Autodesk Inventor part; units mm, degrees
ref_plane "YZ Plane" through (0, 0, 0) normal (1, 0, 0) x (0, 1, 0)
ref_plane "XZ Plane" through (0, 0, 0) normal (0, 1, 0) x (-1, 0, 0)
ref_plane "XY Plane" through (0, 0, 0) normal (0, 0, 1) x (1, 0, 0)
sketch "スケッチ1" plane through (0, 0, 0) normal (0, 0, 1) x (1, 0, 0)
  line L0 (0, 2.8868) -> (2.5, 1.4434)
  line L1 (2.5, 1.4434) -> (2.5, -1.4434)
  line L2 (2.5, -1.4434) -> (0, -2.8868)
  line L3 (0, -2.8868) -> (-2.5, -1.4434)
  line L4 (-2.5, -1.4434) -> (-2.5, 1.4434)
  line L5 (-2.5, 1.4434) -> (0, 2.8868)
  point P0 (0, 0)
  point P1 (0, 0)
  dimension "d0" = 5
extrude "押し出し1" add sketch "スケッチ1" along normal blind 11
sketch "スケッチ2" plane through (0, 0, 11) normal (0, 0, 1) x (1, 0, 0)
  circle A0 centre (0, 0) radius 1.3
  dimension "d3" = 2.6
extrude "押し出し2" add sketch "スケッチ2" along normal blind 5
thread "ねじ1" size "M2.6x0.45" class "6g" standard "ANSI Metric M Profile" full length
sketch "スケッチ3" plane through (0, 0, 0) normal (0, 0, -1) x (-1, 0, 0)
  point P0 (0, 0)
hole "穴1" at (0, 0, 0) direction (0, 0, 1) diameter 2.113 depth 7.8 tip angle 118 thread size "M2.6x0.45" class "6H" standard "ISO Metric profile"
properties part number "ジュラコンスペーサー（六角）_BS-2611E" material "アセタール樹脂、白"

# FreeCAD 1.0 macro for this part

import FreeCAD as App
import Part
import Sketcher
Q = App.Units.Quantity

doc = App.newDocument("Part")
body = doc.addObject("PartDesign::Body", "Body")

sketch1 = body.newObject("Sketcher::SketchObject", "Sketch")
sketch1.AttachmentSupport = (doc.getObject("XY_Plane"), [""])
sketch1.MapMode = "FlatFace"
sketch1.addGeometry([
    Part.LineSegment(App.Vector(2.5, 1.4434, 0), App.Vector(0, 2.8868, 0)),
    Part.LineSegment(App.Vector(0, 2.8868, 0), App.Vector(-2.5, 1.4434, 0)),
    Part.LineSegment(App.Vector(-2.5, 1.4434, 0), App.Vector(-2.5, -1.4434, 0)),
    Part.LineSegment(App.Vector(-2.5, -1.4434, 0), App.Vector(0, -2.8868, 0)),
    Part.LineSegment(App.Vector(0, -2.8868, 0), App.Vector(2.5, -1.4434, 0)),
    Part.LineSegment(App.Vector(2.5, -1.4434, 0), App.Vector(2.5, 1.4434, 0)),
], False)
sketch1.addConstraint([
    Sketcher.Constraint("Coincident", 0, 2, 1, 1),
    Sketcher.Constraint("Coincident", 1, 2, 2, 1),
    Sketcher.Constraint("Coincident", 2, 2, 3, 1),
    Sketcher.Constraint("Coincident", 3, 2, 4, 1),
    Sketcher.Constraint("Coincident", 4, 2, 5, 1),
    Sketcher.Constraint("Coincident", 5, 2, 0, 1),
    Sketcher.Constraint("Vertical", 2),
    Sketcher.Constraint("Vertical", 5),
    Sketcher.Constraint("Symmetric", 0, 2, 3, 2, -1, 1),
    Sketcher.Constraint("Symmetric", 1, 2, 4, 2, -1, 1),
    Sketcher.Constraint("PointOnObject", 0, 2, -2),
    Sketcher.Constraint("Parallel", 0, 3),
    Sketcher.Constraint("Horizontal", 2, 2, 4, 2),
    Sketcher.Constraint("DistanceX", 2, 2, 4, 2, Q("5 mm")),
    Sketcher.Constraint("Angle", 0, Q("149.9996 deg")),
    Sketcher.Constraint("DistanceY", 2, 2, 2, 1, Q("2.8868 mm")),
])
pad1 = body.newObject("PartDesign::Pad", "Pad")
pad1.Profile = sketch1
pad1.Length = 11

sketch2 = body.newObject("Sketcher::SketchObject", "Sketch001")
sketch2.AttachmentSupport = (doc.getObject("XY_Plane"), [""])
sketch2.MapMode = "FlatFace"
sketch2.AttachmentOffset = App.Placement(App.Vector(0, 0, 11), App.Rotation())
sketch2.addGeometry(Part.Circle(App.Vector(0, 0, 0), App.Vector(0, 0, 1), 1.3), False)
sketch2.addConstraint([
    Sketcher.Constraint("Coincident", 0, 3, -1, 1),
    Sketcher.Constraint("Diameter", 0, Q("2.6 mm")),
])
pad2 = body.newObject("PartDesign::Pad", "Pad001")
pad2.Profile = sketch2
pad2.Length = 5

sketch3 = body.newObject("Sketcher::SketchObject", "Sketch002")
sketch3.AttachmentSupport = (doc.getObject("XY_Plane"), [""])
sketch3.MapMode = "FlatFace"
sketch3.addGeometry(Part.Circle(App.Vector(0, 0, 0), App.Vector(0, 0, 1), 1.0565), False)
sketch3.addConstraint([
    Sketcher.Constraint("Coincident", 0, 3, -1, 1),
    Sketcher.Constraint("Diameter", 0, Q("2.113 mm")),
])
doc.recompute()
hole = body.newObject("PartDesign::Hole", "Hole")
hole.Profile = sketch3
hole.ThreadType = "None"
hole.Diameter = 2.113
hole.DepthType = "Dimension"
hole.Depth = 7.8
hole.DrillPoint = "Angled"
hole.DrillPointAngle = 118
hole.Reversed = True

doc.recompute()
